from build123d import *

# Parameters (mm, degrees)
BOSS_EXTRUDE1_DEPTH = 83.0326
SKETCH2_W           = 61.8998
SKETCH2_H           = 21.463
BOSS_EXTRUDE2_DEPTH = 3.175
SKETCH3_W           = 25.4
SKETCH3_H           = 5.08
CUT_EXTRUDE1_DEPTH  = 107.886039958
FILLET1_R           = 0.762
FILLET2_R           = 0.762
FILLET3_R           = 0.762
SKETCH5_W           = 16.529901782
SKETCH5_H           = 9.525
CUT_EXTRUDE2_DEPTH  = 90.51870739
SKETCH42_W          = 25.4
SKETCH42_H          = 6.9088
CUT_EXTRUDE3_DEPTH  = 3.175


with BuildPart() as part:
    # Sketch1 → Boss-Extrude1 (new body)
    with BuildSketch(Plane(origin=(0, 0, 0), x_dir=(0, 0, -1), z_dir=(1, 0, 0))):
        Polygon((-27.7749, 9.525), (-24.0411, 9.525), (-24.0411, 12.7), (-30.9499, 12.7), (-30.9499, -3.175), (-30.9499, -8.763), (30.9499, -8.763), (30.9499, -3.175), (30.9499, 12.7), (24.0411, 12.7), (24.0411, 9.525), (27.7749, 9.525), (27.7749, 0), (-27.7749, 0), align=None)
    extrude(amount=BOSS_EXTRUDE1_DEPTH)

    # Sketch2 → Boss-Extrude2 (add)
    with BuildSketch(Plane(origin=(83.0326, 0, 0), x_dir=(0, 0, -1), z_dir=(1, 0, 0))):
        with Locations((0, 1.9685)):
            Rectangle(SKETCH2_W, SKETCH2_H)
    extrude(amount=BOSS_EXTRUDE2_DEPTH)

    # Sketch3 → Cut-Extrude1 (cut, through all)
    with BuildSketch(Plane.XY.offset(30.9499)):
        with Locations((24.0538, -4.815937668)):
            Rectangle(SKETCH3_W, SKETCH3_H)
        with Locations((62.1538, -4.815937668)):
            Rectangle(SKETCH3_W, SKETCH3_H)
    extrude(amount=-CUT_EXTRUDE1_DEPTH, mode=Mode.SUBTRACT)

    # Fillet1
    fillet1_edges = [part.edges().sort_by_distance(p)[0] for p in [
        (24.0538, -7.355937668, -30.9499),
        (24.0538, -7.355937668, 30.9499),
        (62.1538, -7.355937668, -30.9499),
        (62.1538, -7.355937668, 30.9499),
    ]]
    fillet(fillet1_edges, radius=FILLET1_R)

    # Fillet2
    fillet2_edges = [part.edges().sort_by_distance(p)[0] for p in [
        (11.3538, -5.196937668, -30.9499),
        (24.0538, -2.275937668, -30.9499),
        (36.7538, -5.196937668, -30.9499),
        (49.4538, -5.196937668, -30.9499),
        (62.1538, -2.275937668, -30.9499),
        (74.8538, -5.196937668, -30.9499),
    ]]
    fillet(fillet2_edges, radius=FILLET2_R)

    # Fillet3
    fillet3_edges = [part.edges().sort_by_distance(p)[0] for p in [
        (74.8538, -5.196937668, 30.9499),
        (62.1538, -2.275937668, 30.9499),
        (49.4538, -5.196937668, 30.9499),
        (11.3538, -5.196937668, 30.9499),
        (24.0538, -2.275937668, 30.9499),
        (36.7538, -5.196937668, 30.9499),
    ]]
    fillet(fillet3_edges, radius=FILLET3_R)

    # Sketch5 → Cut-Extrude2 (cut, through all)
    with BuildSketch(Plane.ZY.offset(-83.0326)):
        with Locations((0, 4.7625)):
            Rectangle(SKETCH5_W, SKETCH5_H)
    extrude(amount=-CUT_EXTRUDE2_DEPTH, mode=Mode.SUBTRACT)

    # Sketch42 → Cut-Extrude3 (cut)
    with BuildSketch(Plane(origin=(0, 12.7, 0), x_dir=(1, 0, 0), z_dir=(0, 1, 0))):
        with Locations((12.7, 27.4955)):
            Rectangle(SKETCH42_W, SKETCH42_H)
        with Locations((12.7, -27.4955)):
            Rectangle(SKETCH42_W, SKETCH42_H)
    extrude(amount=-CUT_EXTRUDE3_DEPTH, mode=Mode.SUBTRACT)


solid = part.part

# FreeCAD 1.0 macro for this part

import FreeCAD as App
import Part
import Sketcher
Q = App.Units.Quantity


def edges_at(feature, points):
    """Names of the edges that pass closest to the given points."""
    edges = feature.Shape.Edges
    near = lambda p: min(range(len(edges)), key=lambda i: edges[i].distToShape(Part.Vertex(*p))[0])
    return sorted({f"Edge{near(p) + 1}" for p in points})

doc = App.newDocument("Part")
params = doc.addObject("Spreadsheet::Sheet", "Params")
for row, (alias, value) in enumerate([
    ("sketch1_width", "0.125 in"),
    ("sketch1_width2", "0.845 in"),
    ("sketch1_height", "0.147 in"),
    ("sketch1_height2", "0.272 in"),
    ("sketch1_height3", "2.437 in"),
    ("pad1_length", "3.269 in"),
    ("sketch2_width", "0.845 in"),
    ("sketch2_height", "2.437 in"),
    ("pad2_length", "0.125 in"),
    ("sketch3_width", "1 in"),
    ("sketch3_height", "0.2 in"),
    ("fillet_radius", "0.03 in"),
    ("fillet2_radius", "0.03 in"),
    ("fillet3_radius", "0.03 in"),
    ("sketch4_width", "0.375 in"),
    ("sketch5_width", "1 in"),
    ("sketch5_height", "0.272 in"),
    ("pocket3_length", "0.125 in"),
], start=1):
    params.set(f"A{row}", alias)
    params.set(f"B{row}", "=" + value)
    params.setAlias(f"B{row}", alias)

body = doc.addObject("PartDesign::Body", "Body")

# Sketch on YZ plane
sketch1 = body.newObject("Sketcher::SketchObject", "Sketch")
sketch1.AttachmentSupport = (doc.getObject("YZ_Plane"), [""])
sketch1.MapMode = "FlatFace"
sketch1.addGeometry([
    Part.LineSegment(App.Vector(9.525, 27.7749, 0), App.Vector(9.525, 24.0411, 0)),  # 0
    Part.LineSegment(App.Vector(9.525, 24.0411, 0), App.Vector(12.7, 24.0411, 0)),  # 1
    Part.LineSegment(App.Vector(12.7, 24.0411, 0), App.Vector(12.7, 30.9499, 0)),  # 2
    Part.LineSegment(App.Vector(12.7, 30.9499, 0), App.Vector(-8.763, 30.9499, 0)),  # 3
    Part.LineSegment(App.Vector(-8.763, 30.9499, 0), App.Vector(-8.763, -30.9499, 0)),  # 4
    Part.LineSegment(App.Vector(-8.763, -30.9499, 0), App.Vector(12.7, -30.9499, 0)),  # 5
    Part.LineSegment(App.Vector(12.7, -30.9499, 0), App.Vector(12.7, -24.0411, 0)),  # 6
    Part.LineSegment(App.Vector(12.7, -24.0411, 0), App.Vector(9.525, -24.0411, 0)),  # 7
    Part.LineSegment(App.Vector(9.525, -24.0411, 0), App.Vector(9.525, -27.7749, 0)),  # 8
    Part.LineSegment(App.Vector(9.525, -27.7749, 0), App.Vector(0, -27.7749, 0)),  # 9
    Part.LineSegment(App.Vector(0, -27.7749, 0), App.Vector(0, 27.7749, 0)),  # 10
    Part.LineSegment(App.Vector(0, 27.7749, 0), App.Vector(9.525, 27.7749, 0)),  # 11
], False)
sketch1.addConstraint([
    Sketcher.Constraint("Coincident", 0, 2, 1, 1),
    Sketcher.Constraint("Coincident", 1, 2, 2, 1),
    Sketcher.Constraint("Coincident", 2, 2, 3, 1),
    Sketcher.Constraint("Coincident", 3, 2, 4, 1),
    Sketcher.Constraint("Coincident", 4, 2, 5, 1),
    Sketcher.Constraint("Coincident", 5, 2, 6, 1),
    Sketcher.Constraint("Coincident", 6, 2, 7, 1),
    Sketcher.Constraint("Coincident", 7, 2, 8, 1),
    Sketcher.Constraint("Coincident", 8, 2, 9, 1),
    Sketcher.Constraint("Coincident", 9, 2, 10, 1),
    Sketcher.Constraint("Coincident", 10, 2, 11, 1),
    Sketcher.Constraint("Coincident", 11, 2, 0, 1),
    Sketcher.Constraint("Vertical", 0),
    Sketcher.Constraint("Horizontal", 1),
    Sketcher.Constraint("Vertical", 2),
    Sketcher.Constraint("Horizontal", 3),
    Sketcher.Constraint("Vertical", 4),
    Sketcher.Constraint("Horizontal", 5),
    Sketcher.Constraint("Vertical", 6),
    Sketcher.Constraint("Horizontal", 7),
    Sketcher.Constraint("Vertical", 8),
    Sketcher.Constraint("Horizontal", 9),
    Sketcher.Constraint("Vertical", 10),
    Sketcher.Constraint("Horizontal", 11),
    Sketcher.Constraint("Symmetric", 9, 2, 10, 2, -1, 1),
    Sketcher.Constraint("Symmetric", 2, 2, 5, 2, -1),
    Sketcher.Constraint("Symmetric", 0, 2, 7, 2, -1),
    Sketcher.Constraint("DistanceX", -1, 1, 1, 2, Q("0.5 in")),
    Sketcher.Constraint("DistanceX", 1, 1, 1, 2, Q("0.125 in")),
    Sketcher.Constraint("DistanceX", 3, 2, 3, 1, Q("0.845 in")),
    Sketcher.Constraint("DistanceY", 0, 2, 0, 1, Q("0.147 in")),
    Sketcher.Constraint("DistanceY", 2, 1, 2, 2, Q("0.272 in")),
    Sketcher.Constraint("DistanceY", 4, 2, 4, 1, Q("2.437 in")),
])
sketch1.setExpression("Constraints[28]", "Params.sketch1_width")
sketch1.setExpression("Constraints[29]", "Params.sketch1_width2")
sketch1.setExpression("Constraints[30]", "Params.sketch1_height")
sketch1.setExpression("Constraints[31]", "Params.sketch1_height2")
sketch1.setExpression("Constraints[32]", "Params.sketch1_height3")
pad1 = body.newObject("PartDesign::Pad", "Pad")
pad1.Profile = sketch1
pad1.setExpression("Length", "Params.pad1_length")

# Sketch on YZ plane
sketch2 = body.newObject("Sketcher::SketchObject", "Sketch001")
sketch2.AttachmentSupport = (doc.getObject("YZ_Plane"), [""])
sketch2.MapMode = "FlatFace"
sketch2.AttachmentOffset = App.Placement(App.Vector(0, 0, 3.269 * 25.4), App.Rotation())
sketch2.addGeometry([
    Part.LineSegment(App.Vector(12.7, 30.9499, 0), App.Vector(-8.763, 30.9499, 0)),
    Part.LineSegment(App.Vector(-8.763, 30.9499, 0), App.Vector(-8.763, -30.9499, 0)),
    Part.LineSegment(App.Vector(-8.763, -30.9499, 0), App.Vector(12.7, -30.9499, 0)),
    Part.LineSegment(App.Vector(12.7, -30.9499, 0), App.Vector(12.7, 30.9499, 0)),
], False)
sketch2.addConstraint([
    Sketcher.Constraint("Coincident", 0, 2, 1, 1),
    Sketcher.Constraint("Coincident", 1, 2, 2, 1),
    Sketcher.Constraint("Coincident", 2, 2, 3, 1),
    Sketcher.Constraint("Coincident", 3, 2, 0, 1),
    Sketcher.Constraint("Horizontal", 0),
    Sketcher.Constraint("Vertical", 1),
    Sketcher.Constraint("Horizontal", 2),
    Sketcher.Constraint("Vertical", 3),
    Sketcher.Constraint("DistanceX", -1, 1, 2, 2, Q("0.5 in")),
    Sketcher.Constraint("DistanceX", 0, 2, 0, 1, Q("0.845 in")),
    Sketcher.Constraint("DistanceY", 1, 2, 1, 1, Q("2.437 in")),
    Sketcher.Constraint("DistanceY", -1, 1, 0, 2, Q("1.2185 in")),
])
sketch2.setExpression("Constraints[9]", "Params.sketch2_width")
sketch2.setExpression("Constraints[10]", "Params.sketch2_height")
pad2 = body.newObject("PartDesign::Pad", "Pad001")
pad2.Profile = sketch2
pad2.setExpression("Length", "Params.pad2_length")

# Sketch on XY plane
sketch3 = body.newObject("Sketcher::SketchObject", "Sketch002")
sketch3.AttachmentSupport = (doc.getObject("XY_Plane"), [""])
sketch3.MapMode = "FlatFace"
sketch3.AttachmentOffset = App.Placement(App.Vector(0, 0, 1.2185 * 25.4), App.Rotation())
sketch3.addGeometry([
    Part.LineSegment(App.Vector(11.3538, -2.275938, 0), App.Vector(11.3538, -7.355938, 0)),  # 0
    Part.LineSegment(App.Vector(11.3538, -7.355938, 0), App.Vector(36.7538, -7.355938, 0)),  # 1
    Part.LineSegment(App.Vector(36.7538, -7.355938, 0), App.Vector(36.7538, -2.275938, 0)),  # 2
    Part.LineSegment(App.Vector(36.7538, -2.275938, 0), App.Vector(11.3538, -2.275938, 0)),  # 3
    Part.LineSegment(App.Vector(49.4538, -2.275938, 0), App.Vector(49.4538, -7.355938, 0)),  # 4
    Part.LineSegment(App.Vector(49.4538, -7.355938, 0), App.Vector(74.8538, -7.355938, 0)),  # 5
    Part.LineSegment(App.Vector(74.8538, -7.355938, 0), App.Vector(74.8538, -2.275938, 0)),  # 6
    Part.LineSegment(App.Vector(74.8538, -2.275938, 0), App.Vector(49.4538, -2.275938, 0)),  # 7
], False)
sketch3.addConstraint([
    Sketcher.Constraint("Coincident", 0, 2, 1, 1),
    Sketcher.Constraint("Coincident", 1, 2, 2, 1),
    Sketcher.Constraint("Coincident", 2, 2, 3, 1),
    Sketcher.Constraint("Coincident", 3, 2, 0, 1),
    Sketcher.Constraint("Coincident", 4, 2, 5, 1),
    Sketcher.Constraint("Coincident", 5, 2, 6, 1),
    Sketcher.Constraint("Coincident", 6, 2, 7, 1),
    Sketcher.Constraint("Coincident", 7, 2, 4, 1),
    Sketcher.Constraint("Vertical", 0),
    Sketcher.Constraint("Horizontal", 1),
    Sketcher.Constraint("Vertical", 2),
    Sketcher.Constraint("Horizontal", 3),
    Sketcher.Constraint("Vertical", 4),
    Sketcher.Constraint("Horizontal", 5),
    Sketcher.Constraint("Vertical", 6),
    Sketcher.Constraint("Horizontal", 7),
    Sketcher.Constraint("Horizontal", 1, 2, 4, 2),
    Sketcher.Constraint("Horizontal", 3, 2, 6, 2),
    Sketcher.Constraint("Equal", 3, 5),
    Sketcher.Constraint("DistanceX", 1, 1, 1, 2, Q("1 in")),
    Sketcher.Constraint("DistanceY", 0, 2, 0, 1, Q("0.2 in")),
    Sketcher.Constraint("DistanceX", 1, 2, 4, 2, Q("0.5 in")),
    Sketcher.Constraint("DistanceX", -1, 1, 0, 2, Q("0.447 in")),
    Sketcher.Constraint("DistanceY", 0, 2, -1, 1, 7.355938),
])
sketch3.setExpression("Constraints[19]", "Params.sketch3_width")
sketch3.setExpression("Constraints[20]", "Params.sketch3_height")
pocket1 = body.newObject("PartDesign::Pocket", "Pocket")
pocket1.Profile = sketch3
pocket1.Type = "ThroughAll"
doc.recompute()

fillet = body.newObject("PartDesign::Fillet", "Fillet")
fillet.Base = (pocket1, edges_at(pocket1, [
    (24.054, -7.356, -30.95),
    (24.054, -7.356, 30.95),
    (62.154, -7.356, -30.95),
    (62.154, -7.356, 30.95),
]))
fillet.setExpression("Radius", "Params.fillet_radius")
doc.recompute()

fillet2 = body.newObject("PartDesign::Fillet", "Fillet001")
fillet2.Base = (fillet, edges_at(fillet, [
    (11.354, -5.197, -30.95),
    (24.054, -2.276, -30.95),
    (36.754, -5.197, -30.95),
    (49.454, -5.197, -30.95),
    (62.154, -2.276, -30.95),
    (74.854, -5.197, -30.95),
]))
fillet2.setExpression("Radius", "Params.fillet2_radius")
doc.recompute()

fillet3 = body.newObject("PartDesign::Fillet", "Fillet002")
fillet3.Base = (fillet2, edges_at(fillet2, [
    (74.854, -5.197, 30.95),
    (62.154, -2.276, 30.95),
    (49.454, -5.197, 30.95),
    (11.354, -5.197, 30.95),
    (24.054, -2.276, 30.95),
    (36.754, -5.197, 30.95),
]))
fillet3.setExpression("Radius", "Params.fillet3_radius")

# Sketch on YZ plane
sketch4 = body.newObject("Sketcher::SketchObject", "Sketch003")
sketch4.AttachmentSupport = (doc.getObject("YZ_Plane"), [""])
sketch4.MapMode = "FlatFace"
sketch4.AttachmentOffset = App.Placement(App.Vector(0, 0, 3.269 * 25.4), App.Rotation())
sketch4.addGeometry([
    Part.LineSegment(App.Vector(9.525, -8.264951, 0), App.Vector(0, -8.264951, 0)),
    Part.LineSegment(App.Vector(0, -8.264951, 0), App.Vector(0, 8.264951, 0)),
    Part.LineSegment(App.Vector(0, 8.264951, 0), App.Vector(9.525, 8.264951, 0)),
    Part.LineSegment(App.Vector(9.525, 8.264951, 0), App.Vector(9.525, -8.264951, 0)),
], False)
sketch4.addConstraint([
    Sketcher.Constraint("Coincident", 0, 2, 1, 1),
    Sketcher.Constraint("Coincident", 1, 2, 2, 1),
    Sketcher.Constraint("Coincident", 2, 2, 3, 1),
    Sketcher.Constraint("Coincident", 3, 2, 0, 1),
    Sketcher.Constraint("Horizontal", 0),
    Sketcher.Constraint("Vertical", 1),
    Sketcher.Constraint("Horizontal", 2),
    Sketcher.Constraint("Vertical", 3),
    Sketcher.Constraint("Symmetric", 0, 2, 1, 2, -1, 1),
    Sketcher.Constraint("DistanceX", 0, 2, 0, 1, Q("0.375 in")),
    Sketcher.Constraint("DistanceY", 1, 1, 1, 2, 16.529902),
])
sketch4.setExpression("Constraints[9]", "Params.sketch4_width")
pocket2 = body.newObject("PartDesign::Pocket", "Pocket001")
pocket2.Profile = sketch4
pocket2.Type = "ThroughAll"
pocket2.Reversed = True

# Sketch on XZ plane
sketch5 = body.newObject("Sketcher::SketchObject", "Sketch004")
sketch5.AttachmentSupport = (doc.getObject("XZ_Plane"), [""])
sketch5.MapMode = "FlatFace"
sketch5.AttachmentOffset = App.Placement(App.Vector(0, 0, -0.5 * 25.4), App.Rotation())
sketch5.addGeometry([
    Part.LineSegment(App.Vector(0, -30.9499, 0), App.Vector(0, -24.0411, 0)),  # 0
    Part.LineSegment(App.Vector(0, -24.0411, 0), App.Vector(25.4, -24.0411, 0)),  # 1
    Part.LineSegment(App.Vector(25.4, -24.0411, 0), App.Vector(25.4, -30.9499, 0)),  # 2
    Part.LineSegment(App.Vector(25.4, -30.9499, 0), App.Vector(0, -30.9499, 0)),  # 3
    Part.LineSegment(App.Vector(0, 24.0411, 0), App.Vector(0, 30.9499, 0)),  # 4
    Part.LineSegment(App.Vector(0, 30.9499, 0), App.Vector(25.4, 30.9499, 0)),  # 5
    Part.LineSegment(App.Vector(25.4, 30.9499, 0), App.Vector(25.4, 24.0411, 0)),  # 6
    Part.LineSegment(App.Vector(25.4, 24.0411, 0), App.Vector(0, 24.0411, 0)),  # 7
], False)
sketch5.addConstraint([
    Sketcher.Constraint("Coincident", 0, 2, 1, 1),
    Sketcher.Constraint("Coincident", 1, 2, 2, 1),
    Sketcher.Constraint("Coincident", 2, 2, 3, 1),
    Sketcher.Constraint("Coincident", 3, 2, 0, 1),
    Sketcher.Constraint("Coincident", 4, 2, 5, 1),
    Sketcher.Constraint("Coincident", 5, 2, 6, 1),
    Sketcher.Constraint("Coincident", 6, 2, 7, 1),
    Sketcher.Constraint("Coincident", 7, 2, 4, 1),
    Sketcher.Constraint("Vertical", 0),
    Sketcher.Constraint("Horizontal", 1),
    Sketcher.Constraint("Vertical", 2),
    Sketcher.Constraint("Horizontal", 3),
    Sketcher.Constraint("Vertical", 4),
    Sketcher.Constraint("Horizontal", 5),
    Sketcher.Constraint("Vertical", 6),
    Sketcher.Constraint("Horizontal", 7),
    Sketcher.Constraint("Symmetric", 3, 2, 4, 2, -1, 1),
    Sketcher.Constraint("Symmetric", 1, 2, 6, 2, -1),
    Sketcher.Constraint("PointOnObject", 0, 2, -2),
    Sketcher.Constraint("DistanceX", 1, 1, 1, 2, Q("1 in")),
    Sketcher.Constraint("DistanceY", 0, 1, 0, 2, Q("0.272 in")),
    Sketcher.Constraint("DistanceY", 0, 2, 4, 2, Q("2.165 in")),
])
sketch5.setExpression("Constraints[19]", "Params.sketch5_width")
sketch5.setExpression("Constraints[20]", "Params.sketch5_height")
pocket3 = body.newObject("PartDesign::Pocket", "Pocket002")
pocket3.Profile = sketch5
pocket3.setExpression("Length", "Params.pocket3_length")
pocket3.Reversed = True

doc.recompute()
